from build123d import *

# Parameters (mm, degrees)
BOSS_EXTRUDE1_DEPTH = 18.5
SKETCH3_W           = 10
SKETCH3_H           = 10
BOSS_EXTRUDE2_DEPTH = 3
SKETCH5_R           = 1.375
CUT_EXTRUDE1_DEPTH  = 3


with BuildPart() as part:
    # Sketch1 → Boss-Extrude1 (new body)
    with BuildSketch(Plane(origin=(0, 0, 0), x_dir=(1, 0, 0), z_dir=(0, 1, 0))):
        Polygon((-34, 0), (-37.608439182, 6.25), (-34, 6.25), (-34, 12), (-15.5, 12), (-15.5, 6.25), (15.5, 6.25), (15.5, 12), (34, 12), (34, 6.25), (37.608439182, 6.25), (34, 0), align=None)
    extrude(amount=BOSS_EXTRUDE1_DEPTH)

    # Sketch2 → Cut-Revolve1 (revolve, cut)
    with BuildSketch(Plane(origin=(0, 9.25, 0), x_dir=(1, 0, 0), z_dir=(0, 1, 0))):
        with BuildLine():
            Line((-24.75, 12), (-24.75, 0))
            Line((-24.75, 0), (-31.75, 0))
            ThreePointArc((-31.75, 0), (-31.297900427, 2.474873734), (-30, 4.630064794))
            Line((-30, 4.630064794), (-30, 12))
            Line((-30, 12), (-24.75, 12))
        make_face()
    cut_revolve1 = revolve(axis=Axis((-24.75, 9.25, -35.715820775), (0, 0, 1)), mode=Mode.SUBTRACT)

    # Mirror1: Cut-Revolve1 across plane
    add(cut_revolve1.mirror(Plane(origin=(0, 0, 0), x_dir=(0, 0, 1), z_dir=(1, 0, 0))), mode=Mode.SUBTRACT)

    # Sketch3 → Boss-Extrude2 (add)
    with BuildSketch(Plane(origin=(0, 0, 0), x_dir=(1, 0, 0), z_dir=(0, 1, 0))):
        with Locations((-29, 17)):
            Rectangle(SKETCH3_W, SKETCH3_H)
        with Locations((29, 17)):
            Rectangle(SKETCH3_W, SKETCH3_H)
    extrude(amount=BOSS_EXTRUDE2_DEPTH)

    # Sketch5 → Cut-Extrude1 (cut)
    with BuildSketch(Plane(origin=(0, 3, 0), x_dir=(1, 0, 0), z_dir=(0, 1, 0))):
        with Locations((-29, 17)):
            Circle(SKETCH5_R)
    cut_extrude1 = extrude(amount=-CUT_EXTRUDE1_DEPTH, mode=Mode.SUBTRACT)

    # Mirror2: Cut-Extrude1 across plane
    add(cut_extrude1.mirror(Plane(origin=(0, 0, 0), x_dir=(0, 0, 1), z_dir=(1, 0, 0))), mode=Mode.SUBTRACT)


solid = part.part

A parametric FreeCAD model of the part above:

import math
import FreeCAD as App
import Part
import Sketcher
from FreeCAD import Vector
Q = App.Units.Quantity

doc = App.newDocument("Part")
body = doc.addObject("PartDesign::Body", "Body")

sketch1 = body.newObject("Sketcher::SketchObject", "Sketch")
sketch1.AttachmentSupport = (doc.getObject("XZ_Plane"), [""])
sketch1.MapMode = "FlatFace"
sketch1.addGeometry([
    Part.LineSegment(Vector(-37.608439, -6.25, 0), Vector(-34, 0, 0)),
    Part.LineSegment(Vector(-34, 0, 0), Vector(34, 0, 0)),
    Part.LineSegment(Vector(34, 0, 0), Vector(37.608439, -6.25, 0)),
    Part.LineSegment(Vector(37.608439, -6.25, 0), Vector(34, -6.25, 0)),
    Part.LineSegment(Vector(34, -6.25, 0), Vector(34, -12, 0)),
    Part.LineSegment(Vector(34, -12, 0), Vector(15.5, -12, 0)),
    Part.LineSegment(Vector(15.5, -12, 0), Vector(15.5, -6.25, 0)),
    Part.LineSegment(Vector(15.5, -6.25, 0), Vector(-15.5, -6.25, 0)),
    Part.LineSegment(Vector(-15.5, -6.25, 0), Vector(-15.5, -12, 0)),
    Part.LineSegment(Vector(-15.5, -12, 0), Vector(-34, -12, 0)),
    Part.LineSegment(Vector(-34, -12, 0), Vector(-34, -6.25, 0)),
    Part.LineSegment(Vector(-34, -6.25, 0), Vector(-37.608439, -6.25, 0)),
], False)
sketch1.addConstraint([
    Sketcher.Constraint("Coincident", 0, 2, 1, 1),
    Sketcher.Constraint("Coincident", 1, 2, 2, 1),
    Sketcher.Constraint("Coincident", 2, 2, 3, 1),
    Sketcher.Constraint("Coincident", 3, 2, 4, 1),
    Sketcher.Constraint("Coincident", 4, 2, 5, 1),
    Sketcher.Constraint("Coincident", 5, 2, 6, 1),
    Sketcher.Constraint("Coincident", 6, 2, 7, 1),
    Sketcher.Constraint("Coincident", 7, 2, 8, 1),
    Sketcher.Constraint("Coincident", 8, 2, 9, 1),
    Sketcher.Constraint("Coincident", 9, 2, 10, 1),
    Sketcher.Constraint("Coincident", 10, 2, 11, 1),
    Sketcher.Constraint("Coincident", 11, 2, 0, 1),
    Sketcher.Constraint("Horizontal", 1),
    Sketcher.Constraint("Horizontal", 3),
    Sketcher.Constraint("Vertical", 4),
    Sketcher.Constraint("Horizontal", 5),
    Sketcher.Constraint("Vertical", 6),
    Sketcher.Constraint("Horizontal", 7),
    Sketcher.Constraint("Vertical", 8),
    Sketcher.Constraint("Horizontal", 9),
    Sketcher.Constraint("Vertical", 10),
    Sketcher.Constraint("Horizontal", 11),
    Sketcher.Constraint("Symmetric", 0, 2, 1, 2, -1, 1),
    Sketcher.Constraint("Symmetric", 5, 2, 8, 2, -2),
    Sketcher.Constraint("Symmetric", 3, 2, 10, 2, -2),
    Sketcher.Constraint("Horizontal", 3, 2, 6, 2),
    Sketcher.Constraint("Vertical", 1, 2, 3, 2),
    Sketcher.Constraint("Equal", 3, 11),
    Sketcher.Constraint("DistanceX", 1, 1, 1, 2, 68.0),
    Sketcher.Constraint("DistanceX", 7, 2, 7, 1, 31.0),
    Sketcher.Constraint("Angle", 0, Q("60 deg")),
    Sketcher.Constraint("DistanceY", 4, 2, -1, 1, 12.0),
    Sketcher.Constraint("DistanceY", 4, 2, 4, 1, 5.75),
])
pad1 = body.newObject("PartDesign::Pad", "Pad")
pad1.Profile = sketch1
pad1.Length = 18.5
pad1.Reversed = True

sketch2 = body.newObject("Sketcher::SketchObject", "Sketch001")
sketch2.AttachmentSupport = (doc.getObject("XZ_Plane"), [""])
sketch2.MapMode = "FlatFace"
sketch2.AttachmentOffset = App.Placement(Vector(0, 0, -9.25), App.Rotation())
sketch2.addGeometry([
    Part.LineSegment(Vector(-24.75, 0, 0), Vector(-24.75, -12, 0)),
    Part.LineSegment(Vector(-24.75, -12, 0), Vector(-30, -12, 0)),
    Part.LineSegment(Vector(-30, -12, 0), Vector(-30, -4.630065, 0)),
    Part.ArcOfCircle(Part.Circle(Vector(-24.75, 0, 0), Vector(0, 0, 1), 7), math.radians(180), math.radians(221.409622)),
    Part.LineSegment(Vector(-31.75, 0, 0), Vector(-24.75, 0, 0)),
], False)
sketch2.addGeometry(Part.LineSegment(Vector(-24.75, -12, 0), Vector(-24.75, 0, 0)), True)
sketch2.addConstraint([
    Sketcher.Constraint("Coincident", 0, 2, 1, 1),
    Sketcher.Constraint("Coincident", 1, 2, 2, 1),
    Sketcher.Constraint("Coincident", 2, 2, 3, 2),
    Sketcher.Constraint("Coincident", 3, 1, 4, 1),
    Sketcher.Constraint("Coincident", 4, 2, 0, 1),
    Sketcher.Constraint("Vertical", 0),
    Sketcher.Constraint("Horizontal", 1),
    Sketcher.Constraint("Vertical", 2),
    Sketcher.Constraint("Horizontal", 4),
    Sketcher.Constraint("Vertical", 5),
    Sketcher.Constraint("Coincident", 4, 2, 3, 3),
    Sketcher.Constraint("Coincident", 5, 1, 0, 2),
    Sketcher.Constraint("PointOnObject", 3, 3, -1),
    Sketcher.Constraint("PointOnObject", 5, 2, -1),
    Sketcher.Constraint("Radius", 3, 7.0),
    Sketcher.Constraint("DistanceY", 0, 2, 0, 1, 12.0),
    Sketcher.Constraint("DistanceX", 1, 2, -1, 1, 30.0),
    Sketcher.Constraint("DistanceX", 1, 2, 1, 1, 5.25),
])
groove = body.newObject("PartDesign::Groove", "Groove")
groove.Profile = sketch2
groove.ReferenceAxis = (sketch2, ["Axis0"])
groove.Angle = 360
doc.recompute()

mirrored = body.newObject("PartDesign::Mirrored", "Mirrored")
mirrored.Originals = [groove]
mirrored.MirrorPlane = (doc.getObject("YZ_Plane"), [""])
body.Tip = mirrored

sketch3 = body.newObject("Sketcher::SketchObject", "Sketch002")
sketch3.AttachmentSupport = (doc.getObject("XZ_Plane"), [""])
sketch3.MapMode = "FlatFace"
sketch3.addGeometry([
    Part.LineSegment(Vector(-34, -22, 0), Vector(-34, -12, 0)),
    Part.LineSegment(Vector(-34, -12, 0), Vector(-24, -12, 0)),
    Part.LineSegment(Vector(-24, -12, 0), Vector(-24, -22, 0)),
    Part.LineSegment(Vector(-24, -22, 0), Vector(-34, -22, 0)),
    Part.LineSegment(Vector(24, -22, 0), Vector(24, -12, 0)),
    Part.LineSegment(Vector(24, -12, 0), Vector(34, -12, 0)),
    Part.LineSegment(Vector(34, -12, 0), Vector(34, -22, 0)),
    Part.LineSegment(Vector(34, -22, 0), Vector(24, -22, 0)),
], False)
sketch3.addConstraint([
    Sketcher.Constraint("Coincident", 0, 2, 1, 1),
    Sketcher.Constraint("Coincident", 1, 2, 2, 1),
    Sketcher.Constraint("Coincident", 2, 2, 3, 1),
    Sketcher.Constraint("Coincident", 3, 2, 0, 1),
    Sketcher.Constraint("Coincident", 4, 2, 5, 1),
    Sketcher.Constraint("Coincident", 5, 2, 6, 1),
    Sketcher.Constraint("Coincident", 6, 2, 7, 1),
    Sketcher.Constraint("Coincident", 7, 2, 4, 1),
    Sketcher.Constraint("Vertical", 0),
    Sketcher.Constraint("Horizontal", 1),
    Sketcher.Constraint("Vertical", 2),
    Sketcher.Constraint("Horizontal", 3),
    Sketcher.Constraint("Vertical", 4),
    Sketcher.Constraint("Horizontal", 5),
    Sketcher.Constraint("Vertical", 6),
    Sketcher.Constraint("Horizontal", 7),
    Sketcher.Constraint("Symmetric", 1, 2, 4, 2, -2),
    Sketcher.Constraint("Symmetric", 3, 2, 6, 2, -2),
    Sketcher.Constraint("Equal", 7, 0),
    Sketcher.Constraint("DistanceX", 1, 1, 1, 2, 10.0),
    Sketcher.Constraint("DistanceX", 0, 2, -1, 1, 34.0),
    Sketcher.Constraint("DistanceY", 0, 2, -1, 1, 12.0),
])
pad2 = body.newObject("PartDesign::Pad", "Pad001")
pad2.Profile = sketch3
pad2.Length = 3
pad2.Reversed = True

sketch4 = body.newObject("Sketcher::SketchObject", "Sketch003")
sketch4.AttachmentSupport = (doc.getObject("XZ_Plane"), [""])
sketch4.MapMode = "FlatFace"
sketch4.AttachmentOffset = App.Placement(Vector(0, 0, -3), App.Rotation())
sketch4.addGeometry(Part.Circle(Vector(-29, -17, 0), Vector(0, 0, 1), 1.375), False)
sketch4.addConstraint([
    Sketcher.Constraint("Diameter", 0, 2.75),
    Sketcher.Constraint("DistanceX", 0, 3, -1, 1, 29.0),
    Sketcher.Constraint("DistanceY", 0, 3, -1, 1, 17.0),
])
pocket1 = body.newObject("PartDesign::Pocket", "Pocket")
pocket1.Profile = sketch4
pocket1.Length = 3
pocket1.Reversed = True
doc.recompute()

mirrored2 = body.newObject("PartDesign::Mirrored", "Mirrored001")
mirrored2.Originals = [pocket1]
mirrored2.MirrorPlane = (doc.getObject("YZ_Plane"), [""])
body.Tip = mirrored2

doc.recompute()
